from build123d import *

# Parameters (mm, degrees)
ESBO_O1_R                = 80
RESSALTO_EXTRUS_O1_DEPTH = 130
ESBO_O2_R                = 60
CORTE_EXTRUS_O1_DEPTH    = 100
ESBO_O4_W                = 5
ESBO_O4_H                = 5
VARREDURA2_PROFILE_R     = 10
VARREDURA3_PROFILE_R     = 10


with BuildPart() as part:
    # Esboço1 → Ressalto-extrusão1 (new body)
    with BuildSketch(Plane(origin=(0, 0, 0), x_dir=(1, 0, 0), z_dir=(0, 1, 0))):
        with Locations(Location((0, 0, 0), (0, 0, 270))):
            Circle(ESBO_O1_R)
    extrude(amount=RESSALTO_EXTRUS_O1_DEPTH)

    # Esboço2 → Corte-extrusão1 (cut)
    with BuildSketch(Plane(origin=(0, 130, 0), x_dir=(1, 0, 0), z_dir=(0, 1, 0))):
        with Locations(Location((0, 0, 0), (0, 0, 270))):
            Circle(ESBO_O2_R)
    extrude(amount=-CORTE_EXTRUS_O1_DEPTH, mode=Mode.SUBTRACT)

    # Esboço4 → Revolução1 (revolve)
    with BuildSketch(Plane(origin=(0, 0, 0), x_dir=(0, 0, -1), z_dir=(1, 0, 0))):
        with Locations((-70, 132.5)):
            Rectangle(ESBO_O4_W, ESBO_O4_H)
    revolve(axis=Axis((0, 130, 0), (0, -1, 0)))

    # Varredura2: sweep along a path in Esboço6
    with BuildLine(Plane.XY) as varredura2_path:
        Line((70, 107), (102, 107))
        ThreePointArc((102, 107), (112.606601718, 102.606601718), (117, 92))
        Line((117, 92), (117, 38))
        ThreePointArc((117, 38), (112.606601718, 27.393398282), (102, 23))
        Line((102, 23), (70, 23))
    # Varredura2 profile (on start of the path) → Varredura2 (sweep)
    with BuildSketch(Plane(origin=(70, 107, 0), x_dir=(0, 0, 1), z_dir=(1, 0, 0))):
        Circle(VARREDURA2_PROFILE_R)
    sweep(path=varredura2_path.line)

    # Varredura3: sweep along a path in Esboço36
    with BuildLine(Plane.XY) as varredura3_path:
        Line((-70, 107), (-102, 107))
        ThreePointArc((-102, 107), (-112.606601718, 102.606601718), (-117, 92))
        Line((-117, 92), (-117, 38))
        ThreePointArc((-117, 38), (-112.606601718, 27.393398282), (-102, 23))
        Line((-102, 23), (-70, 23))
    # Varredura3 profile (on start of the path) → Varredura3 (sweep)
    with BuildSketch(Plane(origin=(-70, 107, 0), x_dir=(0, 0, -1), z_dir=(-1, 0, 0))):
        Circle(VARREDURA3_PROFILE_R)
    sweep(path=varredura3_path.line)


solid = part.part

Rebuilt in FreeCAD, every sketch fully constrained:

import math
import FreeCAD as App
import Part
import Sketcher
from FreeCAD import Vector
Q = App.Units.Quantity


def add_polygon(sketch, points):
    """Adds a closed chain of lines whose ends are joined by coincident constraints."""
    first, n = sketch.GeometryCount, len(points)
    for a, b in zip(points, points[1:] + points[:1]):
        sketch.addGeometry(Part.LineSegment(App.Vector(*a, 0), App.Vector(*b, 0)), False)
    for i in range(n):
        sketch.addConstraint(Sketcher.Constraint("Coincident", first + i, 2, first + (i + 1) % n, 1))

doc = App.newDocument("Part")
params = doc.addObject("Spreadsheet::Sheet", "Params")
for row, (alias, value) in enumerate([
    ("sketch1_diameter", "160 mm"),
    ("pad1_length", "130 mm"),
    ("sketch2_diameter", "120 mm"),
    ("pocket1_length", "100 mm"),
    ("sketch3_width", "5 mm"),
    ("revolution_angle", "360 deg"),
    ("sketch4_diameter", "20 mm"),
    ("sketch5_radius", "15 mm"),
    ("sketch5_width", "32 mm"),
    ("sketch5_height", "54 mm"),
    ("sketch6_diameter", "20 mm"),
    ("sketch7_radius", "15 mm"),
    ("sketch7_width", "32 mm"),
    ("sketch7_height", "54 mm"),
], start=1):
    params.set(f"A{row}", alias)
    params.set(f"B{row}", "=" + value)
    params.setAlias(f"B{row}", alias)

body = doc.addObject("PartDesign::Body", "Body")

# Sketch on XZ plane
sketch1 = body.newObject("Sketcher::SketchObject", "Sketch")
sketch1.AttachmentSupport = (doc.getObject("XZ_Plane"), [""])
sketch1.MapMode = "FlatFace"
sketch1.addGeometry(Part.Circle(Vector(0, 0, 0), Vector(0, 0, 1), 80), False)
sketch1.addConstraint(Sketcher.Constraint("Coincident", 0, 3, -1, 1))
sketch1.addConstraint(Sketcher.Constraint("Diameter", 0, Q("160 mm")))
sketch1.setExpression("Constraints[1]", "Params.sketch1_diameter")
pad1 = body.newObject("PartDesign::Pad", "Pad")
pad1.Profile = sketch1
pad1.setExpression("Length", "Params.pad1_length")
pad1.Reversed = True

# Sketch on XZ plane
sketch2 = body.newObject("Sketcher::SketchObject", "Sketch001")
sketch2.AttachmentSupport = (doc.getObject("XZ_Plane"), [""])
sketch2.MapMode = "FlatFace"
sketch2.AttachmentOffset = App.Placement(Vector(0, 0, -130), App.Rotation())
sketch2.addGeometry(Part.Circle(Vector(0, 0, 0), Vector(0, 0, 1), 60), False)
sketch2.addConstraint(Sketcher.Constraint("Coincident", 0, 3, -1, 1))
sketch2.addConstraint(Sketcher.Constraint("Diameter", 0, Q("120 mm")))
sketch2.setExpression("Constraints[1]", "Params.sketch2_diameter")
pocket1 = body.newObject("PartDesign::Pocket", "Pocket")
pocket1.Profile = sketch2
pocket1.setExpression("Length", "Params.pocket1_length")
pocket1.Reversed = True

# Sketch on YZ plane
sketch3 = body.newObject("Sketcher::SketchObject", "Sketch002")
sketch3.AttachmentSupport = (doc.getObject("YZ_Plane"), [""])
sketch3.MapMode = "FlatFace"
add_polygon(sketch3, [(135, 72.5), (130, 72.5), (130, 67.5), (135, 67.5)])  # lines 0-3
sketch3.addConstraint(Sketcher.Constraint("Horizontal", 0))
sketch3.addConstraint(Sketcher.Constraint("Vertical", 1))
sketch3.addConstraint(Sketcher.Constraint("Horizontal", 2))
sketch3.addConstraint(Sketcher.Constraint("Vertical", 3))
sketch3.addConstraint(Sketcher.Constraint("Equal", 2, 1))
sketch3.addConstraint(Sketcher.Constraint("DistanceX", 0, 2, 0, 1, Q("5 mm")))
sketch3.addConstraint(Sketcher.Constraint("DistanceX", -1, 1, 0, 2, Q("130 mm")))
sketch3.addConstraint(Sketcher.Constraint("DistanceY", -1, 1, 0, 2, Q("72.5 mm")))
sketch3.setExpression("Constraints[9]", "Params.sketch3_width")
revolution = body.newObject("PartDesign::Revolution", "Revolution")
revolution.Profile = sketch3
revolution.ReferenceAxis = (sketch3, ["H_Axis"])
revolution.setExpression("Angle", "Params.revolution_angle")

# Sketch on YZ plane
sketch4 = body.newObject("Sketcher::SketchObject", "Sketch003")
sketch4.AttachmentSupport = (doc.getObject("YZ_Plane"), [""])
sketch4.MapMode = "FlatFace"
sketch4.AttachmentOffset = App.Placement(Vector(0, 0, 70), App.Rotation())
sketch4.addGeometry(Part.Circle(Vector(107, 0, 0), Vector(0, 0, 1), 10), False)
sketch4.addConstraint(Sketcher.Constraint("PointOnObject", 0, 3, -1))
sketch4.addConstraint(Sketcher.Constraint("Diameter", 0, Q("20 mm")))
sketch4.addConstraint(Sketcher.Constraint("DistanceX", -1, 1, 0, 3, Q("107 mm")))
sketch4.setExpression("Constraints[1]", "Params.sketch4_diameter")

# Sketch on XY plane
sketch5 = body.newObject("Sketcher::SketchObject", "Sketch004")
sketch5.AttachmentSupport = (doc.getObject("XY_Plane"), [""])
sketch5.MapMode = "FlatFace"
sketch5.addGeometry(Part.LineSegment(Vector(70, 107, 0), Vector(102, 107, 0)), False)
sketch5.addGeometry(Part.ArcOfCircle(Part.Circle(Vector(102, 92, 0), Vector(0, 0, 1), 15), math.radians(0), math.radians(90)), False)
sketch5.addGeometry(Part.LineSegment(Vector(117, 92, 0), Vector(117, 38, 0)), False)
sketch5.addGeometry(Part.ArcOfCircle(Part.Circle(Vector(102, 38, 0), Vector(0, 0, 1), 15), math.radians(-90), math.radians(0)), False)
sketch5.addGeometry(Part.LineSegment(Vector(102, 23, 0), Vector(70, 23, 0)), False)
sketch5.addConstraint(Sketcher.Constraint("Tangent", 0, 2, 1, 2))
sketch5.addConstraint(Sketcher.Constraint("Tangent", 1, 1, 2, 1))
sketch5.addConstraint(Sketcher.Constraint("Tangent", 2, 2, 3, 2))
sketch5.addConstraint(Sketcher.Constraint("Tangent", 3, 1, 4, 1))
sketch5.addConstraint(Sketcher.Constraint("Horizontal", 0))
sketch5.addConstraint(Sketcher.Constraint("Vertical", 2))
sketch5.addConstraint(Sketcher.Constraint("Horizontal", 4))
sketch5.addConstraint(Sketcher.Constraint("Equal", 1, 3))
sketch5.addConstraint(Sketcher.Constraint("Vertical", 0, 1, 4, 2))
sketch5.addConstraint(Sketcher.Constraint("Radius", 1, Q("15 mm")))
sketch5.addConstraint(Sketcher.Constraint("DistanceX", 0, 1, 0, 2, Q("32 mm")))
sketch5.addConstraint(Sketcher.Constraint("DistanceY", 2, 2, 2, 1, Q("54 mm")))
sketch5.addConstraint(Sketcher.Constraint("DistanceX", -1, 1, 1, 3, Q("102 mm")))
sketch5.addConstraint(Sketcher.Constraint("DistanceY", -1, 1, 1, 3, Q("92 mm")))
sketch5.setExpression("Constraints[9]", "Params.sketch5_radius")
sketch5.setExpression("Constraints[10]", "Params.sketch5_width")
sketch5.setExpression("Constraints[11]", "Params.sketch5_height")
doc.recompute()

additivepipe = body.newObject("PartDesign::AdditivePipe", "AdditivePipe")
additivepipe.Profile = sketch4
additivepipe.Spine = (sketch5, ["Edge1", "Edge2", "Edge3", "Edge4", "Edge5"])

# Sketch on YZ plane
sketch6 = body.newObject("Sketcher::SketchObject", "Sketch005")
sketch6.AttachmentSupport = (doc.getObject("YZ_Plane"), [""])
sketch6.MapMode = "FlatFace"
sketch6.AttachmentOffset = App.Placement(Vector(0, 0, -70), App.Rotation())
sketch6.addGeometry(Part.Circle(Vector(107, 0, 0), Vector(0, 0, 1), 10), False)
sketch6.addConstraint(Sketcher.Constraint("PointOnObject", 0, 3, -1))
sketch6.addConstraint(Sketcher.Constraint("Diameter", 0, Q("20 mm")))
sketch6.addConstraint(Sketcher.Constraint("DistanceX", -1, 1, 0, 3, Q("107 mm")))
sketch6.setExpression("Constraints[1]", "Params.sketch6_diameter")

# Sketch on XY plane
sketch7 = body.newObject("Sketcher::SketchObject", "Sketch006")
sketch7.AttachmentSupport = (doc.getObject("XY_Plane"), [""])
sketch7.MapMode = "FlatFace"
sketch7.addGeometry(Part.LineSegment(Vector(-70, 107, 0), Vector(-102, 107, 0)), False)
sketch7.addGeometry(Part.ArcOfCircle(Part.Circle(Vector(-102, 92, 0), Vector(0, 0, 1), 15), math.radians(90), math.radians(180)), False)
sketch7.addGeometry(Part.LineSegment(Vector(-117, 92, 0), Vector(-117, 38, 0)), False)
sketch7.addGeometry(Part.ArcOfCircle(Part.Circle(Vector(-102, 38, 0), Vector(0, 0, 1), 15), math.radians(180), math.radians(270)), False)
sketch7.addGeometry(Part.LineSegment(Vector(-102, 23, 0), Vector(-70, 23, 0)), False)
sketch7.addConstraint(Sketcher.Constraint("Tangent", 0, 2, 1, 1))
sketch7.addConstraint(Sketcher.Constraint("Tangent", 1, 2, 2, 1))
sketch7.addConstraint(Sketcher.Constraint("Tangent", 2, 2, 3, 1))
sketch7.addConstraint(Sketcher.Constraint("Tangent", 3, 2, 4, 1))
sketch7.addConstraint(Sketcher.Constraint("Horizontal", 0))
sketch7.addConstraint(Sketcher.Constraint("Vertical", 2))
sketch7.addConstraint(Sketcher.Constraint("Horizontal", 4))
sketch7.addConstraint(Sketcher.Constraint("Equal", 1, 3))
sketch7.addConstraint(Sketcher.Constraint("Vertical", 0, 1, 4, 2))
sketch7.addConstraint(Sketcher.Constraint("Radius", 1, Q("15 mm")))
sketch7.addConstraint(Sketcher.Constraint("DistanceX", 0, 2, 0, 1, Q("32 mm")))
sketch7.addConstraint(Sketcher.Constraint("DistanceY", 2, 2, 2, 1, Q("54 mm")))
sketch7.addConstraint(Sketcher.Constraint("DistanceX", 1, 3, -1, 1, Q("102 mm")))
sketch7.addConstraint(Sketcher.Constraint("DistanceY", -1, 1, 1, 3, Q("92 mm")))
sketch7.setExpression("Constraints[9]", "Params.sketch7_radius")
sketch7.setExpression("Constraints[10]", "Params.sketch7_width")
sketch7.setExpression("Constraints[11]", "Params.sketch7_height")
doc.recompute()

additivepipe2 = body.newObject("PartDesign::AdditivePipe", "AdditivePipe001")
additivepipe2.Profile = sketch6
additivepipe2.Spine = (sketch7, ["Edge1", "Edge2", "Edge3", "Edge4", "Edge5"])

doc.recompute()
